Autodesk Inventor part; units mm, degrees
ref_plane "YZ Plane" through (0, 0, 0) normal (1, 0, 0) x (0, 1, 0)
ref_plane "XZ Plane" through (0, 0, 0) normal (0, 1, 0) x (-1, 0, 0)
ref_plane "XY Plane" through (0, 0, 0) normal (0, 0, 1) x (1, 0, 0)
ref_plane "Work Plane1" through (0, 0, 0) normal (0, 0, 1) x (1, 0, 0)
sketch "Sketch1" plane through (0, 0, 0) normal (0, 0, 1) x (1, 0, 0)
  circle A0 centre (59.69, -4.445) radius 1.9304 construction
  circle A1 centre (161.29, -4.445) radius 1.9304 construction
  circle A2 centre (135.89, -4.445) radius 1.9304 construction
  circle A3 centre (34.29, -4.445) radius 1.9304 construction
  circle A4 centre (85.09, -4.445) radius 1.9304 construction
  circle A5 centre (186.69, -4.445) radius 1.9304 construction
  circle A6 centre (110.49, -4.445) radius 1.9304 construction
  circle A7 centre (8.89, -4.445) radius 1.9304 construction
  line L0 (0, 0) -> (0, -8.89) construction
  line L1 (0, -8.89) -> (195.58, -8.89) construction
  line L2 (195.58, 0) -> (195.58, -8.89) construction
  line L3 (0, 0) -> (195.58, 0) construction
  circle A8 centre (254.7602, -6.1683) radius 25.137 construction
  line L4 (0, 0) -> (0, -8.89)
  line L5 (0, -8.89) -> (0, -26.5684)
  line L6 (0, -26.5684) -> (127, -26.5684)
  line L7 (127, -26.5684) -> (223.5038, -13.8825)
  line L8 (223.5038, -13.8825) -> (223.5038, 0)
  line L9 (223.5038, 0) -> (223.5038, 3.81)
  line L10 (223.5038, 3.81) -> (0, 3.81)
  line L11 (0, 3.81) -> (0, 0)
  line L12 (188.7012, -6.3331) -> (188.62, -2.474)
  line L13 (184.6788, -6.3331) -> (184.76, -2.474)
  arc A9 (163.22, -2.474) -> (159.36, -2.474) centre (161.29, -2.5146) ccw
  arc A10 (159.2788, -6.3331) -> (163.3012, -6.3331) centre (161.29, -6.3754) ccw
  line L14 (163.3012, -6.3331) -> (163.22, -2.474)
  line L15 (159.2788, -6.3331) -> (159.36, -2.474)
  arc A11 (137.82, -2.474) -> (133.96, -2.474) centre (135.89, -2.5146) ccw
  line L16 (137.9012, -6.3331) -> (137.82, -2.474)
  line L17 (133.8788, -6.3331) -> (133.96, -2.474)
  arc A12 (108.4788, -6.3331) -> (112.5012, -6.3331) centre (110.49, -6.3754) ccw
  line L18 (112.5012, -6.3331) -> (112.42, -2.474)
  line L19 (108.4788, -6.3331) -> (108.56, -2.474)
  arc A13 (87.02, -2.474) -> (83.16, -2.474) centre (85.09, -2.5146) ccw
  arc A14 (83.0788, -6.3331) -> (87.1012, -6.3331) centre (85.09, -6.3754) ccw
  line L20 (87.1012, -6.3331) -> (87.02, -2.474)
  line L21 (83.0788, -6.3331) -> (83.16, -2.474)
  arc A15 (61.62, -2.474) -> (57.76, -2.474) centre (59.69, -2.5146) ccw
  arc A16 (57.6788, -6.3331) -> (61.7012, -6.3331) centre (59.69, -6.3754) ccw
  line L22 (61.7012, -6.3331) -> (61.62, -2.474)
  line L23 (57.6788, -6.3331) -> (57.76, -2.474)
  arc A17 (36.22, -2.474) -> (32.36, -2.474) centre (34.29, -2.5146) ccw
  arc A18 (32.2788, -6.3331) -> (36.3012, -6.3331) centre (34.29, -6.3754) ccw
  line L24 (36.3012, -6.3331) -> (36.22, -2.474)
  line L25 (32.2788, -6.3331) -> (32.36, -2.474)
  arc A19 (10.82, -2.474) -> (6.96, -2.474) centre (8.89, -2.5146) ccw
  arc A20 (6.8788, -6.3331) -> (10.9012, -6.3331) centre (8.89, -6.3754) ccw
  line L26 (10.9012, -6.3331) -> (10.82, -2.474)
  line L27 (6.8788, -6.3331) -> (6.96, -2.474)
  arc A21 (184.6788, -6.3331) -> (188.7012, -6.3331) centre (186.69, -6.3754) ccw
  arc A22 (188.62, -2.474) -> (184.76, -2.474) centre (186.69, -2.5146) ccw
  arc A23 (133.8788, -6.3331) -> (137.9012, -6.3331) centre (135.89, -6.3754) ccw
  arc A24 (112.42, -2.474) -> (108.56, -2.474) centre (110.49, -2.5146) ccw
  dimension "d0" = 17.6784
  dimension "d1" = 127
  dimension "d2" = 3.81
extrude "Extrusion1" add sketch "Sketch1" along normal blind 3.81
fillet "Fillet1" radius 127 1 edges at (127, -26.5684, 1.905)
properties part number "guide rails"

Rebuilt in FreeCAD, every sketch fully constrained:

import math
import FreeCAD as App
import Part
import Sketcher

V = App.Vector
Q = App.Units.Quantity


def edges_at(feature, points):
    """Names of the edges that pass closest to the given points."""
    edges = feature.Shape.Edges
    near = lambda p: min(range(len(edges)), key=lambda i: edges[i].distToShape(Part.Vertex(*p))[0])
    return sorted({f"Edge{near(p) + 1}" for p in points})


def add_polygon(sketch, points):
    """Adds a closed chain of lines whose ends are joined by coincident constraints."""
    first, n = sketch.GeometryCount, len(points)
    for a, b in zip(points, points[1:] + points[:1]):
        sketch.addGeometry(Part.LineSegment(App.Vector(*a, 0), App.Vector(*b, 0)), False)
    for i in range(n):
        sketch.addConstraint(Sketcher.Constraint("Coincident", first + i, 2, first + (i + 1) % n, 1))

doc = App.newDocument("Part")
body = doc.addObject("PartDesign::Body", "Body")

# Sketch on XY plane
sketch1 = body.newObject("Sketcher::SketchObject", "Sketch")
sketch1.AttachmentSupport = (doc.getObject("XY_Plane"), [""])
sketch1.MapMode = "FlatFace"
add_polygon(sketch1, [(0, 3.81), (0, -26.5684), (127, -26.5684), (223.5038, -13.8825), (223.5038, 3.81)])  # lines 0-4
sketch1.addGeometry(Part.ArcOfCircle(Part.Circle(V(8.89, -2.5146, 0), V(0, 0, 1), 1.930427), math.radians(1.205112), math.radians(178.794888)), False)  # 5
sketch1.addGeometry(Part.LineSegment(V(10.82, -2.474, 0), V(10.9012, -6.3331, 0)), False)  # 6
sketch1.addGeometry(Part.ArcOfCircle(Part.Circle(V(8.89, -6.3754, 0), V(0, 0, 1), 2.011645), math.radians(178.79512), math.radians(361.20488)), False)  # 7
sketch1.addGeometry(Part.LineSegment(V(6.8788, -6.3331, 0), V(6.96, -2.474, 0)), False)  # 8
sketch1.addGeometry(Part.ArcOfCircle(Part.Circle(V(34.29, -2.5146, 0), V(0, 0, 1), 1.930427), math.radians(1.205112), math.radians(178.794888)), False)  # 9
sketch1.addGeometry(Part.LineSegment(V(36.22, -2.474, 0), V(36.3012, -6.3331, 0)), False)  # 10
sketch1.addGeometry(Part.ArcOfCircle(Part.Circle(V(34.29, -6.3754, 0), V(0, 0, 1), 2.011645), math.radians(178.79512), math.radians(361.20488)), False)  # 11
sketch1.addGeometry(Part.LineSegment(V(32.2788, -6.3331, 0), V(32.36, -2.474, 0)), False)  # 12
sketch1.addGeometry(Part.ArcOfCircle(Part.Circle(V(59.69, -2.5146, 0), V(0, 0, 1), 1.930427), math.radians(1.205112), math.radians(178.794888)), False)  # 13
sketch1.addGeometry(Part.LineSegment(V(61.62, -2.474, 0), V(61.7012, -6.3331, 0)), False)  # 14
sketch1.addGeometry(Part.ArcOfCircle(Part.Circle(V(59.69, -6.3754, 0), V(0, 0, 1), 2.011645), math.radians(178.79512), math.radians(361.20488)), False)  # 15
sketch1.addGeometry(Part.LineSegment(V(57.6788, -6.3331, 0), V(57.76, -2.474, 0)), False)  # 16
sketch1.addGeometry(Part.ArcOfCircle(Part.Circle(V(85.09, -2.5146, 0), V(0, 0, 1), 1.930427), math.radians(1.205112), math.radians(178.794888)), False)  # 17
sketch1.addGeometry(Part.LineSegment(V(87.02, -2.474, 0), V(87.1012, -6.3331, 0)), False)  # 18
sketch1.addGeometry(Part.ArcOfCircle(Part.Circle(V(85.09, -6.3754, 0), V(0, 0, 1), 2.011645), math.radians(178.79512), math.radians(361.20488)), False)  # 19
sketch1.addGeometry(Part.LineSegment(V(83.0788, -6.3331, 0), V(83.16, -2.474, 0)), False)  # 20
sketch1.addGeometry(Part.ArcOfCircle(Part.Circle(V(110.49, -6.3754, 0), V(0, 0, 1), 2.011645), math.radians(178.79512), math.radians(361.20488)), False)  # 21
sketch1.addGeometry(Part.LineSegment(V(108.4788, -6.3331, 0), V(108.56, -2.474, 0)), False)  # 22
sketch1.addGeometry(Part.ArcOfCircle(Part.Circle(V(110.49, -2.5146, 0), V(0, 0, 1), 1.930427), math.radians(1.205112), math.radians(178.794888)), False)  # 23
sketch1.addGeometry(Part.LineSegment(V(112.42, -2.474, 0), V(112.5012, -6.3331, 0)), False)  # 24
sketch1.addGeometry(Part.ArcOfCircle(Part.Circle(V(135.89, -2.5146, 0), V(0, 0, 1), 1.930427), math.radians(1.205112), math.radians(178.794888)), False)  # 25
sketch1.addGeometry(Part.LineSegment(V(137.82, -2.474, 0), V(137.9012, -6.3331, 0)), False)  # 26
sketch1.addGeometry(Part.ArcOfCircle(Part.Circle(V(135.89, -6.3754, 0), V(0, 0, 1), 2.011645), math.radians(178.79512), math.radians(361.20488)), False)  # 27
sketch1.addGeometry(Part.LineSegment(V(133.8788, -6.3331, 0), V(133.96, -2.474, 0)), False)  # 28
sketch1.addGeometry(Part.ArcOfCircle(Part.Circle(V(161.29, -2.5146, 0), V(0, 0, 1), 1.930427), math.radians(1.205112), math.radians(178.794888)), False)  # 29
sketch1.addGeometry(Part.LineSegment(V(163.22, -2.474, 0), V(163.3012, -6.3331, 0)), False)  # 30
sketch1.addGeometry(Part.ArcOfCircle(Part.Circle(V(161.29, -6.3754, 0), V(0, 0, 1), 2.011645), math.radians(178.79512), math.radians(361.20488)), False)  # 31
sketch1.addGeometry(Part.LineSegment(V(159.2788, -6.3331, 0), V(159.36, -2.474, 0)), False)  # 32
sketch1.addGeometry(Part.LineSegment(V(188.62, -2.474, 0), V(188.7012, -6.3331, 0)), False)  # 33
sketch1.addGeometry(Part.ArcOfCircle(Part.Circle(V(186.69, -6.3754, 0), V(0, 0, 1), 2.011645), math.radians(178.79512), math.radians(361.20488)), False)  # 34
sketch1.addGeometry(Part.LineSegment(V(184.6788, -6.3331, 0), V(184.76, -2.474, 0)), False)  # 35
sketch1.addGeometry(Part.ArcOfCircle(Part.Circle(V(186.69, -2.5146, 0), V(0, 0, 1), 1.930427), math.radians(1.205112), math.radians(178.794888)), False)  # 36
sketch1.addConstraint(Sketcher.Constraint("Tangent", 5, 1, 6, 1))
sketch1.addConstraint(Sketcher.Constraint("Tangent", 6, 2, 7, 2))
sketch1.addConstraint(Sketcher.Constraint("Tangent", 7, 1, 8, 1))
sketch1.addConstraint(Sketcher.Constraint("Tangent", 8, 2, 5, 2))
sketch1.addConstraint(Sketcher.Constraint("Tangent", 9, 1, 10, 1))
sketch1.addConstraint(Sketcher.Constraint("Tangent", 10, 2, 11, 2))
sketch1.addConstraint(Sketcher.Constraint("Tangent", 11, 1, 12, 1))
sketch1.addConstraint(Sketcher.Constraint("Tangent", 12, 2, 9, 2))
sketch1.addConstraint(Sketcher.Constraint("Tangent", 13, 1, 14, 1))
sketch1.addConstraint(Sketcher.Constraint("Tangent", 14, 2, 15, 2))
sketch1.addConstraint(Sketcher.Constraint("Tangent", 15, 1, 16, 1))
sketch1.addConstraint(Sketcher.Constraint("Tangent", 16, 2, 13, 2))
sketch1.addConstraint(Sketcher.Constraint("Tangent", 17, 1, 18, 1))
sketch1.addConstraint(Sketcher.Constraint("Tangent", 18, 2, 19, 2))
sketch1.addConstraint(Sketcher.Constraint("Tangent", 19, 1, 20, 1))
sketch1.addConstraint(Sketcher.Constraint("Tangent", 20, 2, 17, 2))
sketch1.addConstraint(Sketcher.Constraint("Tangent", 21, 1, 22, 1))
sketch1.addConstraint(Sketcher.Constraint("Tangent", 22, 2, 23, 2))
sketch1.addConstraint(Sketcher.Constraint("Tangent", 23, 1, 24, 1))
sketch1.addConstraint(Sketcher.Constraint("Tangent", 24, 2, 21, 2))
sketch1.addConstraint(Sketcher.Constraint("Tangent", 25, 1, 26, 1))
sketch1.addConstraint(Sketcher.Constraint("Tangent", 26, 2, 27, 2))
sketch1.addConstraint(Sketcher.Constraint("Tangent", 27, 1, 28, 1))
sketch1.addConstraint(Sketcher.Constraint("Tangent", 28, 2, 25, 2))
sketch1.addConstraint(Sketcher.Constraint("Tangent", 29, 1, 30, 1))
sketch1.addConstraint(Sketcher.Constraint("Tangent", 30, 2, 31, 2))
sketch1.addConstraint(Sketcher.Constraint("Tangent", 31, 1, 32, 1))
sketch1.addConstraint(Sketcher.Constraint("Tangent", 32, 2, 29, 2))
sketch1.addConstraint(Sketcher.Constraint("Tangent", 33, 2, 34, 2))
sketch1.addConstraint(Sketcher.Constraint("Tangent", 34, 1, 35, 1))
sketch1.addConstraint(Sketcher.Constraint("Tangent", 35, 2, 36, 2))
sketch1.addConstraint(Sketcher.Constraint("Tangent", 36, 1, 33, 1))
sketch1.addConstraint(Sketcher.Constraint("Vertical", 0))
sketch1.addConstraint(Sketcher.Constraint("Horizontal", 1))
sketch1.addConstraint(Sketcher.Constraint("Vertical", 3))
sketch1.addConstraint(Sketcher.Constraint("Horizontal", 4))
sketch1.addConstraint(Sketcher.Constraint("Equal", 5, 9))
sketch1.addConstraint(Sketcher.Constraint("Equal", 7, 11))
sketch1.addConstraint(Sketcher.Constraint("Equal", 9, 13))
sketch1.addConstraint(Sketcher.Constraint("Equal", 11, 15))
sketch1.addConstraint(Sketcher.Constraint("Equal", 13, 17))
sketch1.addConstraint(Sketcher.Constraint("Equal", 15, 19))
sketch1.addConstraint(Sketcher.Constraint("Equal", 19, 21))
sketch1.addConstraint(Sketcher.Constraint("Equal", 17, 23))
sketch1.addConstraint(Sketcher.Constraint("Equal", 23, 25))
sketch1.addConstraint(Sketcher.Constraint("Equal", 21, 27))
sketch1.addConstraint(Sketcher.Constraint("Equal", 25, 29))
sketch1.addConstraint(Sketcher.Constraint("Equal", 27, 31))
sketch1.addConstraint(Sketcher.Constraint("Equal", 31, 34))
sketch1.addConstraint(Sketcher.Constraint("Equal", 29, 36))
sketch1.addConstraint(Sketcher.Constraint("PointOnObject", 0, 2, -2))
sketch1.addConstraint(Sketcher.Constraint("Parallel", 6, 10))
sketch1.addConstraint(Sketcher.Constraint("Parallel", 8, 12))
sketch1.addConstraint(Sketcher.Constraint("Parallel", 10, 14))
sketch1.addConstraint(Sketcher.Constraint("Parallel", 12, 16))
sketch1.addConstraint(Sketcher.Constraint("Parallel", 14, 18))
sketch1.addConstraint(Sketcher.Constraint("Parallel", 16, 20))
sketch1.addConstraint(Sketcher.Constraint("Parallel", 20, 22))
sketch1.addConstraint(Sketcher.Constraint("Parallel", 18, 24))
sketch1.addConstraint(Sketcher.Constraint("Parallel", 24, 26))
sketch1.addConstraint(Sketcher.Constraint("Parallel", 22, 28))
sketch1.addConstraint(Sketcher.Constraint("Parallel", 26, 30))
sketch1.addConstraint(Sketcher.Constraint("Parallel", 28, 32))
sketch1.addConstraint(Sketcher.Constraint("Parallel", 30, 33))
sketch1.addConstraint(Sketcher.Constraint("Parallel", 32, 35))
sketch1.addConstraint(Sketcher.Constraint("Horizontal", 5, 3, 9, 3))
sketch1.addConstraint(Sketcher.Constraint("Horizontal", 9, 3, 13, 3))
sketch1.addConstraint(Sketcher.Constraint("Horizontal", 13, 3, 17, 3))
sketch1.addConstraint(Sketcher.Constraint("Horizontal", 19, 3, 21, 3))
sketch1.addConstraint(Sketcher.Constraint("Horizontal", 23, 3, 25, 3))
sketch1.addConstraint(Sketcher.Constraint("Horizontal", 25, 3, 29, 3))
sketch1.addConstraint(Sketcher.Constraint("Horizontal", 31, 3, 34, 3))
sketch1.addConstraint(Sketcher.Constraint("Horizontal", 6, 2, 7, 1))
sketch1.addConstraint(Sketcher.Constraint("DistanceX", 1, 1, 1, 2, Q("5 in")))
sketch1.addConstraint(Sketcher.Constraint("DistanceY", -1, 1, 3, 2, Q("0.15 in")))
sketch1.addConstraint(Sketcher.Constraint("Radius", 5, Q("0.076 in")))
sketch1.addConstraint(Sketcher.Constraint("DistanceX", 5, 3, 9, 3, Q("1 in")))
sketch1.addConstraint(Sketcher.Constraint("DistanceX", 9, 3, 13, 3, Q("1 in")))
sketch1.addConstraint(Sketcher.Constraint("DistanceX", 13, 3, 17, 3, Q("1 in")))
sketch1.addConstraint(Sketcher.Constraint("DistanceX", 19, 3, 21, 3, Q("1 in")))
sketch1.addConstraint(Sketcher.Constraint("DistanceX", 23, 3, 25, 3, Q("1 in")))
sketch1.addConstraint(Sketcher.Constraint("DistanceX", 25, 3, 29, 3, Q("1 in")))
sketch1.addConstraint(Sketcher.Constraint("DistanceX", 31, 3, 34, 3, Q("1 in")))
sketch1.addConstraint(Sketcher.Constraint("Radius", 7, Q("0.0792 in")))
sketch1.addConstraint(Sketcher.Constraint("DistanceY", 0, 2, 0, 1, Q("1.196 in")))
sketch1.addConstraint(Sketcher.Constraint("DistanceX", -1, 1, 5, 3, Q("0.35 in")))
sketch1.addConstraint(Sketcher.Constraint("Angle", 2, Q("7.4889 deg")))
sketch1.addConstraint(Sketcher.Constraint("DistanceY", 5, 3, -1, 1, Q("0.099 in")))
sketch1.addConstraint(Sketcher.Constraint("DistanceY", 7, 3, -1, 1, Q("0.251 in")))
sketch1.addConstraint(Sketcher.Constraint("DistanceX", 4, 2, 4, 1, Q("223.5038 mm")))
pad1 = body.newObject("PartDesign::Pad", "Pad")
pad1.Profile = sketch1
pad1.Length = Q("0.15 in")
doc.recompute()

fillet = body.newObject("PartDesign::Fillet", "Fillet")
fillet.Base = (pad1, edges_at(pad1, [(127, -26.568, 1.905)]))
fillet.Radius = Q("5 in")

doc.recompute()
